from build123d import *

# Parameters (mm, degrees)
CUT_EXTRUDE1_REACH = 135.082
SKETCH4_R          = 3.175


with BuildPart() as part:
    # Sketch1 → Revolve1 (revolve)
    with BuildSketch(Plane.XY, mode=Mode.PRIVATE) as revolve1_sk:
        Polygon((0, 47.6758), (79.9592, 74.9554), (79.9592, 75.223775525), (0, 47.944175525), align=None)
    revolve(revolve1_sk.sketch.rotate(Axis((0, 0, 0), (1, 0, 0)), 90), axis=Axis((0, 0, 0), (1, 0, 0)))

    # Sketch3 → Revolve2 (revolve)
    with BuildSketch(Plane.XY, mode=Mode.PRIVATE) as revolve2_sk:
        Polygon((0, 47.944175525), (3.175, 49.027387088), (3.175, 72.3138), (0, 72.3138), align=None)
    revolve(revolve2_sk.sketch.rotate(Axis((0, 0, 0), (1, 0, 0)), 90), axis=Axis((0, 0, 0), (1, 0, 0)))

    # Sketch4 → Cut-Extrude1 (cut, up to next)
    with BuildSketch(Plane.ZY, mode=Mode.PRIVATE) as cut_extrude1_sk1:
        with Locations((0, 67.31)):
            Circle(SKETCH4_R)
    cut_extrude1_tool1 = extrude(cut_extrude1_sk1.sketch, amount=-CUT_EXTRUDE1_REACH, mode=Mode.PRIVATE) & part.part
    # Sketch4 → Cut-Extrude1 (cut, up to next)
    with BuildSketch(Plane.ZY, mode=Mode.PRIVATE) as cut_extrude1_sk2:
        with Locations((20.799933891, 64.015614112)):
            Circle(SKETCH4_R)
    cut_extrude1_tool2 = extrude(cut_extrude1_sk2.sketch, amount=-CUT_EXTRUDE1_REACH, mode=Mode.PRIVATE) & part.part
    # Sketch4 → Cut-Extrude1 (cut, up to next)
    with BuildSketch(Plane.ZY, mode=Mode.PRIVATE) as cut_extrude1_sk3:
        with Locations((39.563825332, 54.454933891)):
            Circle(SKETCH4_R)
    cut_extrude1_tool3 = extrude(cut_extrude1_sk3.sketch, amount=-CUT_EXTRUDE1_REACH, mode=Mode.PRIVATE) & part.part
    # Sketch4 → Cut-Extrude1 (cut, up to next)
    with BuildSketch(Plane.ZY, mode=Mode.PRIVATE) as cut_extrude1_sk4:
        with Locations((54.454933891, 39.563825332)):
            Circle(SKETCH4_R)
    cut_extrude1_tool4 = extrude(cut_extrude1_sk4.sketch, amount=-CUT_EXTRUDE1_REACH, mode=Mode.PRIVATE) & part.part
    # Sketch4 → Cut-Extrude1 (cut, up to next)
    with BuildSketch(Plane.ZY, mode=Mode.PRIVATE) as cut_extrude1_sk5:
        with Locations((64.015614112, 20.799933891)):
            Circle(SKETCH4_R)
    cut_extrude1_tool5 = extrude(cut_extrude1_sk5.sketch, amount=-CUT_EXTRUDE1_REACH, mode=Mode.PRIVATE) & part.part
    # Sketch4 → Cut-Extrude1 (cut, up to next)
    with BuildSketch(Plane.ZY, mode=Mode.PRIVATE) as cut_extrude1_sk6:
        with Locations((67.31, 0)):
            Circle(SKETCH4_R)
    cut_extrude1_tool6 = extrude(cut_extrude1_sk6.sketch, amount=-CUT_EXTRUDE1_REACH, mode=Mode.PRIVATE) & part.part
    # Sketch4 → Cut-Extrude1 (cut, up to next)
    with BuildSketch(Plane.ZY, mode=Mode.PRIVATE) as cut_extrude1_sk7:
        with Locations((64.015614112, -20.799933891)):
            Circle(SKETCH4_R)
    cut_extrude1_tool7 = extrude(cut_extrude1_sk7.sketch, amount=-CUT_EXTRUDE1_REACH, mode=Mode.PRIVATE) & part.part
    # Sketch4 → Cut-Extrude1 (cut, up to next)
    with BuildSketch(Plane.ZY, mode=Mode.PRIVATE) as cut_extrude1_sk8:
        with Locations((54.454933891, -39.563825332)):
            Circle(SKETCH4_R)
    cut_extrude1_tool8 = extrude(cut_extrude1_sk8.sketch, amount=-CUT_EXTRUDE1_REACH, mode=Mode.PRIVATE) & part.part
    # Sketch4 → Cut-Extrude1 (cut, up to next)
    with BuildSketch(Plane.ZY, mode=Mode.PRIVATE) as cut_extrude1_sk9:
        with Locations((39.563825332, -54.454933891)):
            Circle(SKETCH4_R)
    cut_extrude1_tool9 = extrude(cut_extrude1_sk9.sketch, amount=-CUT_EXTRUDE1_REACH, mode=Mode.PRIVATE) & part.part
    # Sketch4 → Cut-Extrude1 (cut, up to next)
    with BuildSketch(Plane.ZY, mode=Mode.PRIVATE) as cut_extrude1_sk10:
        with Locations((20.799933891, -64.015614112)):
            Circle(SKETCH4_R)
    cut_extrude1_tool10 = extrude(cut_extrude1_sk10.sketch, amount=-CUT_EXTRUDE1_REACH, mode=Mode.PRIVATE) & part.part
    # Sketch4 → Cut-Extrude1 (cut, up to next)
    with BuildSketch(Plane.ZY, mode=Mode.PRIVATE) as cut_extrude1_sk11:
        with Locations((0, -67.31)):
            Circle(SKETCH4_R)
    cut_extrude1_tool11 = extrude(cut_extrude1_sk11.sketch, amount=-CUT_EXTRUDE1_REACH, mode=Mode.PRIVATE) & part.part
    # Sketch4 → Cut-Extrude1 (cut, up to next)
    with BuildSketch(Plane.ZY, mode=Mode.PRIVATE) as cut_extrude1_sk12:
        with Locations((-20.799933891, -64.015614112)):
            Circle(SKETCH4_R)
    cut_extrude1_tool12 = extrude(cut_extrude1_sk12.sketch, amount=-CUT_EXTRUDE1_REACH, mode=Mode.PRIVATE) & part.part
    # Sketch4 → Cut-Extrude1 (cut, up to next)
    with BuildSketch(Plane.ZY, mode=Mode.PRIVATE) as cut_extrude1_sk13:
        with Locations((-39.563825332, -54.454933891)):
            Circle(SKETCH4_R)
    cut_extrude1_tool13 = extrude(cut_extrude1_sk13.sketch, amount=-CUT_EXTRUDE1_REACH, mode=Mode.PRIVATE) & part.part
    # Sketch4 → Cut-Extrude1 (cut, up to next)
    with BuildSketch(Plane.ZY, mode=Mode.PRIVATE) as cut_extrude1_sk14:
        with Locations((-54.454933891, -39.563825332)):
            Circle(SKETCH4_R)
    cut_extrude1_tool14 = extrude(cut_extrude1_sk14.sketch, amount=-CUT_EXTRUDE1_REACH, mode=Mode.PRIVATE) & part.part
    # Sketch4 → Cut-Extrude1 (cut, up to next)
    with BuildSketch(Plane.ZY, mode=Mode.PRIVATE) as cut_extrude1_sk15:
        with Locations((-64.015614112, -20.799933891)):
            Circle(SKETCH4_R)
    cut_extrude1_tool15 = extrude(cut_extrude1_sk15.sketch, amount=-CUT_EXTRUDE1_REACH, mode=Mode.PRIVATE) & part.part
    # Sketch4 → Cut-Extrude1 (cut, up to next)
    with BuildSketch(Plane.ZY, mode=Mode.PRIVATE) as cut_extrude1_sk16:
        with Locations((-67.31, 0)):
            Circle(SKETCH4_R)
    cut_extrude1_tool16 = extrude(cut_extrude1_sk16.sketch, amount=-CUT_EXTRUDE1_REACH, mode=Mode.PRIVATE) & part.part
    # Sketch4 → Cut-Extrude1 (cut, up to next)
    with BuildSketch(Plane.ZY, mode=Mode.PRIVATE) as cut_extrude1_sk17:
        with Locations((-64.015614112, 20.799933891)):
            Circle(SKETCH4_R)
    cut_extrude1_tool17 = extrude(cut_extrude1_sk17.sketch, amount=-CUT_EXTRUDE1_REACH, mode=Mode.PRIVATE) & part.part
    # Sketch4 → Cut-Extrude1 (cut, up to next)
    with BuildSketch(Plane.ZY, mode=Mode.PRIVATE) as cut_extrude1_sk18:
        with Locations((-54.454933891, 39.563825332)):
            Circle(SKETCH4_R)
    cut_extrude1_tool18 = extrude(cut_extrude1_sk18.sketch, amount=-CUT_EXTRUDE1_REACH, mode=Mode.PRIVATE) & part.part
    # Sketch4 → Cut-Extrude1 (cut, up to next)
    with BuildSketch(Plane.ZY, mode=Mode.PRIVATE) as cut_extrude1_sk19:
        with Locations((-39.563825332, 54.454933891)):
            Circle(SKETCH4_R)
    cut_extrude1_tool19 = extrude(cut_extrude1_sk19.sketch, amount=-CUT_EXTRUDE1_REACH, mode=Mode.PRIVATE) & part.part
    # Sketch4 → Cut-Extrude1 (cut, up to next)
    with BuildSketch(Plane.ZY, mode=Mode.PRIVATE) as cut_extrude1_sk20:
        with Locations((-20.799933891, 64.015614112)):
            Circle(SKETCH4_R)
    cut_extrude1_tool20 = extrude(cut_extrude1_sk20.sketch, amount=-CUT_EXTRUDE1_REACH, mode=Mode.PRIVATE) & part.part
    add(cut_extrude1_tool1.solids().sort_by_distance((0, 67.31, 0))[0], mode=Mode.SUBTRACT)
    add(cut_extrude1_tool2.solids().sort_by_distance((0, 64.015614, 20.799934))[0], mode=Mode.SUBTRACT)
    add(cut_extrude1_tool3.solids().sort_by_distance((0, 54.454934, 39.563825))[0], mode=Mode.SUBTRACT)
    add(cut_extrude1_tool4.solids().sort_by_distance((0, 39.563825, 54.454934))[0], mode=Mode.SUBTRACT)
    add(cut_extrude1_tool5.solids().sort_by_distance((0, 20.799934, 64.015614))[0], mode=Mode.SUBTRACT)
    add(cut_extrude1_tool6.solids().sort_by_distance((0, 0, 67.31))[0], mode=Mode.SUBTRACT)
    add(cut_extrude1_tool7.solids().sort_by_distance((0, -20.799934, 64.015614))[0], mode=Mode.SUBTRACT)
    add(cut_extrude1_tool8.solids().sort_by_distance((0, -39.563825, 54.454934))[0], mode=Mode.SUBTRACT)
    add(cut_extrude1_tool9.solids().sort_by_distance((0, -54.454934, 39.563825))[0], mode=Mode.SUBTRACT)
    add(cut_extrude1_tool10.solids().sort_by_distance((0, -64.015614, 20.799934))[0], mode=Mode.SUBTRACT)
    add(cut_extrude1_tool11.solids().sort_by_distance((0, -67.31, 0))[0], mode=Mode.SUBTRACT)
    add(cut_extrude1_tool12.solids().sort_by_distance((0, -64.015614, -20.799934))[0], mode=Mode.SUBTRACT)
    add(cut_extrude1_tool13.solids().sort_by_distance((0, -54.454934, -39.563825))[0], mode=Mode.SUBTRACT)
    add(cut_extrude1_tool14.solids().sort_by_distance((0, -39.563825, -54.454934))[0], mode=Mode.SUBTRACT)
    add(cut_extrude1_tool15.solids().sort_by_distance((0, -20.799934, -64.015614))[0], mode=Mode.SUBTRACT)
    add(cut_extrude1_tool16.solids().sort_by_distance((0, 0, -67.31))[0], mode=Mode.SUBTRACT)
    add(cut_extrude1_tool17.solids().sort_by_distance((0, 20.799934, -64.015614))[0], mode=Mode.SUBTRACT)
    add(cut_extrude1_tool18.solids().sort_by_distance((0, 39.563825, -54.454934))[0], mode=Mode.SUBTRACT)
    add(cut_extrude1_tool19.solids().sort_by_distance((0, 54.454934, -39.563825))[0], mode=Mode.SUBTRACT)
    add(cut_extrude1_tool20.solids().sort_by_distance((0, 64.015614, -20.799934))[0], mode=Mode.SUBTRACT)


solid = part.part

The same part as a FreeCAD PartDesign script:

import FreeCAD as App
import Part
import Sketcher
Q = App.Units.Quantity


def add_polygon(sketch, points):
    """Adds a closed chain of lines whose ends are joined by coincident constraints."""
    first, n = sketch.GeometryCount, len(points)
    for a, b in zip(points, points[1:] + points[:1]):
        sketch.addGeometry(Part.LineSegment(App.Vector(*a, 0), App.Vector(*b, 0)), False)
    for i in range(n):
        sketch.addConstraint(Sketcher.Constraint("Coincident", first + i, 2, first + (i + 1) % n, 1))

doc = App.newDocument("Part")
body = doc.addObject("PartDesign::Body", "Body")

# Sketch on XY plane
sketch1 = body.newObject("Sketcher::SketchObject", "Sketch")
sketch1.AttachmentSupport = (doc.getObject("XY_Plane"), [""])
sketch1.MapMode = "FlatFace"
add_polygon(sketch1, [(0, 47.68), (79.96, 74.96), (79.96, 75.22), (0, 47.94)])  # lines 0-3
sketch1.addConstraint([
    Sketcher.Constraint("Vertical", 1),
    Sketcher.Constraint("Vertical", 3),
    Sketcher.Constraint("PointOnObject", 2, 2, -2),
    Sketcher.Constraint("Parallel", 0, 2),
    Sketcher.Constraint("DistanceX", -1, 1, 0, 2, Q("3.148 in")),
    Sketcher.Constraint("DistanceY", -1, 1, 0, 2, Q("2.951 in")),
    Sketcher.Constraint("DistanceY", -1, 1, 3, 2, Q("1.877 in")),
    Sketcher.Constraint("DistanceY", 1, 1, 1, 2, 0.268376),
])
revolution = body.newObject("PartDesign::Revolution", "Revolution")
revolution.Profile = sketch1
revolution.ReferenceAxis = (sketch1, ["H_Axis"])
revolution.Angle = 360

# Sketch on XY plane
sketch2 = body.newObject("Sketcher::SketchObject", "Sketch001")
sketch2.AttachmentSupport = (doc.getObject("XY_Plane"), [""])
sketch2.MapMode = "FlatFace"
add_polygon(sketch2, [(0, 47.9), (3.2, 49), (3.2, 72.3), (0, 72.3)])  # lines 0-3
sketch2.addConstraint([
    Sketcher.Constraint("Vertical", 1),
    Sketcher.Constraint("Horizontal", 2),
    Sketcher.Constraint("Vertical", 3),
    Sketcher.Constraint("PointOnObject", 2, 2, -2),
    Sketcher.Constraint("DistanceX", 2, 2, 2, 1, Q("0.125 in")),
    Sketcher.Constraint("DistanceY", -1, 1, 1, 2, Q("2.847 in")),
    Sketcher.Constraint("DistanceY", 1, 1, 1, 2, 23.286413),
    Sketcher.Constraint("DistanceY", 3, 2, 3, 1, 24.369624),
])
revolution2 = body.newObject("PartDesign::Revolution", "Revolution001")
revolution2.Profile = sketch2
revolution2.ReferenceAxis = (sketch2, ["H_Axis"])
revolution2.Angle = 360

# Sketch on YZ plane
sketch3 = body.newObject("Sketcher::SketchObject", "Sketch002")
sketch3.AttachmentSupport = (doc.getObject("YZ_Plane"), [""])
sketch3.MapMode = "FlatFace"
sketch3.addGeometry(Part.Circle(App.Vector(67.3, 0, 0), App.Vector(0, 0, 1), 3.2), False)
sketch3.addConstraint([
    Sketcher.Constraint("PointOnObject", 0, 3, -1),
    Sketcher.Constraint("Diameter", 0, Q("0.25 in")),
    Sketcher.Constraint("DistanceX", -1, 1, 0, 3, Q("2.65 in")),
])
pocket1 = body.newObject("PartDesign::Pocket", "Pocket")
pocket1.Profile = sketch3
pocket1.Type = "UpToFirst"
pocket1.Reversed = True

# Sketch on YZ plane
sketch4 = body.newObject("Sketcher::SketchObject", "Sketch003")
sketch4.AttachmentSupport = (doc.getObject("YZ_Plane"), [""])
sketch4.MapMode = "FlatFace"
sketch4.addGeometry(Part.Circle(App.Vector(64, 20.8, 0), App.Vector(0, 0, 1), 3.2), False)
sketch4.addConstraint([
    Sketcher.Constraint("Diameter", 0, Q("0.25 in")),
    Sketcher.Constraint("DistanceX", -1, 1, 0, 3, 64.015614),
    Sketcher.Constraint("DistanceY", -1, 1, 0, 3, 20.799934),
])
pocket2 = body.newObject("PartDesign::Pocket", "Pocket001")
pocket2.Profile = sketch4
pocket2.Type = "UpToFirst"
pocket2.Reversed = True

# Sketch on YZ plane
sketch5 = body.newObject("Sketcher::SketchObject", "Sketch004")
sketch5.AttachmentSupport = (doc.getObject("YZ_Plane"), [""])
sketch5.MapMode = "FlatFace"
sketch5.addGeometry(Part.Circle(App.Vector(54.5, 39.6, 0), App.Vector(0, 0, 1), 3.2), False)
sketch5.addConstraint([
    Sketcher.Constraint("Diameter", 0, Q("0.25 in")),
    Sketcher.Constraint("DistanceX", -1, 1, 0, 3, 54.454934),
    Sketcher.Constraint("DistanceY", -1, 1, 0, 3, 39.563825),
])
pocket3 = body.newObject("PartDesign::Pocket", "Pocket002")
pocket3.Profile = sketch5
pocket3.Type = "UpToFirst"
pocket3.Reversed = True

# Sketch on YZ plane
sketch6 = body.newObject("Sketcher::SketchObject", "Sketch005")
sketch6.AttachmentSupport = (doc.getObject("YZ_Plane"), [""])
sketch6.MapMode = "FlatFace"
sketch6.addGeometry(Part.Circle(App.Vector(39.6, 54.5, 0), App.Vector(0, 0, 1), 3.2), False)
sketch6.addConstraint([
    Sketcher.Constraint("Diameter", 0, Q("0.25 in")),
    Sketcher.Constraint("DistanceX", -1, 1, 0, 3, 39.563825),
    Sketcher.Constraint("DistanceY", -1, 1, 0, 3, 54.454934),
])
pocket4 = body.newObject("PartDesign::Pocket", "Pocket003")
pocket4.Profile = sketch6
pocket4.Type = "UpToFirst"
pocket4.Reversed = True

# Sketch on YZ plane
sketch7 = body.newObject("Sketcher::SketchObject", "Sketch006")
sketch7.AttachmentSupport = (doc.getObject("YZ_Plane"), [""])
sketch7.MapMode = "FlatFace"
sketch7.addGeometry(Part.Circle(App.Vector(20.8, 64, 0), App.Vector(0, 0, 1), 3.2), False)
sketch7.addConstraint([
    Sketcher.Constraint("Diameter", 0, Q("0.25 in")),
    Sketcher.Constraint("DistanceX", -1, 1, 0, 3, 20.799934),
    Sketcher.Constraint("DistanceY", -1, 1, 0, 3, 64.015614),
])
pocket5 = body.newObject("PartDesign::Pocket", "Pocket004")
pocket5.Profile = sketch7
pocket5.Type = "UpToFirst"
pocket5.Reversed = True

# Sketch on YZ plane
sketch8 = body.newObject("Sketcher::SketchObject", "Sketch007")
sketch8.AttachmentSupport = (doc.getObject("YZ_Plane"), [""])
sketch8.MapMode = "FlatFace"
sketch8.addGeometry(Part.Circle(App.Vector(0, 67.3, 0), App.Vector(0, 0, 1), 3.2), False)
sketch8.addConstraint([
    Sketcher.Constraint("PointOnObject", 0, 3, -2),
    Sketcher.Constraint("Diameter", 0, Q("0.25 in")),
    Sketcher.Constraint("DistanceY", -1, 1, 0, 3, Q("2.65 in")),
])
pocket6 = body.newObject("PartDesign::Pocket", "Pocket005")
pocket6.Profile = sketch8
pocket6.Type = "UpToFirst"
pocket6.Reversed = True

# Sketch on YZ plane
sketch9 = body.newObject("Sketcher::SketchObject", "Sketch008")
sketch9.AttachmentSupport = (doc.getObject("YZ_Plane"), [""])
sketch9.MapMode = "FlatFace"
sketch9.addGeometry(Part.Circle(App.Vector(-20.8, 64, 0), App.Vector(0, 0, 1), 3.2), False)
sketch9.addConstraint([
    Sketcher.Constraint("Diameter", 0, Q("0.25 in")),
    Sketcher.Constraint("DistanceX", 0, 3, -1, 1, 20.799934),
    Sketcher.Constraint("DistanceY", -1, 1, 0, 3, 64.015614),
])
pocket7 = body.newObject("PartDesign::Pocket", "Pocket006")
pocket7.Profile = sketch9
pocket7.Type = "UpToFirst"
pocket7.Reversed = True

# Sketch on YZ plane
sketch10 = body.newObject("Sketcher::SketchObject", "Sketch009")
sketch10.AttachmentSupport = (doc.getObject("YZ_Plane"), [""])
sketch10.MapMode = "FlatFace"
sketch10.addGeometry(Part.Circle(App.Vector(-39.6, 54.5, 0), App.Vector(0, 0, 1), 3.2), False)
sketch10.addConstraint([
    Sketcher.Constraint("Diameter", 0, Q("0.25 in")),
    Sketcher.Constraint("DistanceX", 0, 3, -1, 1, 39.563825),
    Sketcher.Constraint("DistanceY", -1, 1, 0, 3, 54.454934),
])
pocket8 = body.newObject("PartDesign::Pocket", "Pocket007")
pocket8.Profile = sketch10
pocket8.Type = "UpToFirst"
pocket8.Reversed = True

# Sketch on YZ plane
sketch11 = body.newObject("Sketcher::SketchObject", "Sketch010")
sketch11.AttachmentSupport = (doc.getObject("YZ_Plane"), [""])
sketch11.MapMode = "FlatFace"
sketch11.addGeometry(Part.Circle(App.Vector(-54.5, 39.6, 0), App.Vector(0, 0, 1), 3.2), False)
sketch11.addConstraint([
    Sketcher.Constraint("Diameter", 0, Q("0.25 in")),
    Sketcher.Constraint("DistanceX", 0, 3, -1, 1, 54.454934),
    Sketcher.Constraint("DistanceY", -1, 1, 0, 3, 39.563825),
])
pocket9 = body.newObject("PartDesign::Pocket", "Pocket008")
pocket9.Profile = sketch11
pocket9.Type = "UpToFirst"
pocket9.Reversed = True

# Sketch on YZ plane
sketch12 = body.newObject("Sketcher::SketchObject", "Sketch011")
sketch12.AttachmentSupport = (doc.getObject("YZ_Plane"), [""])
sketch12.MapMode = "FlatFace"
sketch12.addGeometry(Part.Circle(App.Vector(-64, 20.8, 0), App.Vector(0, 0, 1), 3.2), False)
sketch12.addConstraint([
    Sketcher.Constraint("Diameter", 0, Q("0.25 in")),
    Sketcher.Constraint("DistanceX", 0, 3, -1, 1, 64.015614),
    Sketcher.Constraint("DistanceY", -1, 1, 0, 3, 20.799934),
])
pocket10 = body.newObject("PartDesign::Pocket", "Pocket009")
pocket10.Profile = sketch12
pocket10.Type = "UpToFirst"
pocket10.Reversed = True

# Sketch on YZ plane
sketch13 = body.newObject("Sketcher::SketchObject", "Sketch012")
sketch13.AttachmentSupport = (doc.getObject("YZ_Plane"), [""])
sketch13.MapMode = "FlatFace"
sketch13.addGeometry(Part.Circle(App.Vector(-67.3, 0, 0), App.Vector(0, 0, 1), 3.2), False)
sketch13.addConstraint([
    Sketcher.Constraint("PointOnObject", 0, 3, -1),
    Sketcher.Constraint("Diameter", 0, Q("0.25 in")),
    Sketcher.Constraint("DistanceX", 0, 3, -1, 1, Q("2.65 in")),
])
pocket11 = body.newObject("PartDesign::Pocket", "Pocket010")
pocket11.Profile = sketch13
pocket11.Type = "UpToFirst"
pocket11.Reversed = True

# Sketch on YZ plane
sketch14 = body.newObject("Sketcher::SketchObject", "Sketch013")
sketch14.AttachmentSupport = (doc.getObject("YZ_Plane"), [""])
sketch14.MapMode = "FlatFace"
sketch14.addGeometry(Part.Circle(App.Vector(-64, -20.8, 0), App.Vector(0, 0, 1), 3.2), False)
sketch14.addConstraint([
    Sketcher.Constraint("Diameter", 0, Q("0.25 in")),
    Sketcher.Constraint("DistanceX", 0, 3, -1, 1, 64.015614),
    Sketcher.Constraint("DistanceY", 0, 3, -1, 1, 20.799934),
])
pocket12 = body.newObject("PartDesign::Pocket", "Pocket011")
pocket12.Profile = sketch14
pocket12.Type = "UpToFirst"
pocket12.Reversed = True

# Sketch on YZ plane
sketch15 = body.newObject("Sketcher::SketchObject", "Sketch014")
sketch15.AttachmentSupport = (doc.getObject("YZ_Plane"), [""])
sketch15.MapMode = "FlatFace"
sketch15.addGeometry(Part.Circle(App.Vector(-54.5, -39.6, 0), App.Vector(0, 0, 1), 3.2), False)
sketch15.addConstraint([
    Sketcher.Constraint("Diameter", 0, Q("0.25 in")),
    Sketcher.Constraint("DistanceX", 0, 3, -1, 1, 54.454934),
    Sketcher.Constraint("DistanceY", 0, 3, -1, 1, 39.563825),
])
pocket13 = body.newObject("PartDesign::Pocket", "Pocket012")
pocket13.Profile = sketch15
pocket13.Type = "UpToFirst"
pocket13.Reversed = True

# Sketch on YZ plane
sketch16 = body.newObject("Sketcher::SketchObject", "Sketch015")
sketch16.AttachmentSupport = (doc.getObject("YZ_Plane"), [""])
sketch16.MapMode = "FlatFace"
sketch16.addGeometry(Part.Circle(App.Vector(-39.6, -54.5, 0), App.Vector(0, 0, 1), 3.2), False)
sketch16.addConstraint([
    Sketcher.Constraint("Diameter", 0, Q("0.25 in")),
    Sketcher.Constraint("DistanceX", 0, 3, -1, 1, 39.563825),
    Sketcher.Constraint("DistanceY", 0, 3, -1, 1, 54.454934),
])
pocket14 = body.newObject("PartDesign::Pocket", "Pocket013")
pocket14.Profile = sketch16
pocket14.Type = "UpToFirst"
pocket14.Reversed = True

# Sketch on YZ plane
sketch17 = body.newObject("Sketcher::SketchObject", "Sketch016")
sketch17.AttachmentSupport = (doc.getObject("YZ_Plane"), [""])
sketch17.MapMode = "FlatFace"
sketch17.addGeometry(Part.Circle(App.Vector(-20.8, -64, 0), App.Vector(0, 0, 1), 3.2), False)
sketch17.addConstraint([
    Sketcher.Constraint("Diameter", 0, Q("0.25 in")),
    Sketcher.Constraint("DistanceX", 0, 3, -1, 1, 20.799934),
    Sketcher.Constraint("DistanceY", 0, 3, -1, 1, 64.015614),
])
pocket15 = body.newObject("PartDesign::Pocket", "Pocket014")
pocket15.Profile = sketch17
pocket15.Type = "UpToFirst"
pocket15.Reversed = True

# Sketch on YZ plane
sketch18 = body.newObject("Sketcher::SketchObject", "Sketch017")
sketch18.AttachmentSupport = (doc.getObject("YZ_Plane"), [""])
sketch18.MapMode = "FlatFace"
sketch18.addGeometry(Part.Circle(App.Vector(0, -67.3, 0), App.Vector(0, 0, 1), 3.2), False)
sketch18.addConstraint([
    Sketcher.Constraint("PointOnObject", 0, 3, -2),
    Sketcher.Constraint("Diameter", 0, Q("0.25 in")),
    Sketcher.Constraint("DistanceY", 0, 3, -1, 1, Q("2.65 in")),
])
pocket16 = body.newObject("PartDesign::Pocket", "Pocket015")
pocket16.Profile = sketch18
pocket16.Type = "UpToFirst"
pocket16.Reversed = True

# Sketch on YZ plane
sketch19 = body.newObject("Sketcher::SketchObject", "Sketch018")
sketch19.AttachmentSupport = (doc.getObject("YZ_Plane"), [""])
sketch19.MapMode = "FlatFace"
sketch19.addGeometry(Part.Circle(App.Vector(20.8, -64, 0), App.Vector(0, 0, 1), 3.2), False)
sketch19.addConstraint([
    Sketcher.Constraint("Diameter", 0, Q("0.25 in")),
    Sketcher.Constraint("DistanceX", -1, 1, 0, 3, 20.799934),
    Sketcher.Constraint("DistanceY", 0, 3, -1, 1, 64.015614),
])
pocket17 = body.newObject("PartDesign::Pocket", "Pocket016")
pocket17.Profile = sketch19
pocket17.Type = "UpToFirst"
pocket17.Reversed = True

# Sketch on YZ plane
sketch20 = body.newObject("Sketcher::SketchObject", "Sketch019")
sketch20.AttachmentSupport = (doc.getObject("YZ_Plane"), [""])
sketch20.MapMode = "FlatFace"
sketch20.addGeometry(Part.Circle(App.Vector(39.6, -54.5, 0), App.Vector(0, 0, 1), 3.2), False)
sketch20.addConstraint([
    Sketcher.Constraint("Diameter", 0, Q("0.25 in")),
    Sketcher.Constraint("DistanceX", -1, 1, 0, 3, 39.563825),
    Sketcher.Constraint("DistanceY", 0, 3, -1, 1, 54.454934),
])
pocket18 = body.newObject("PartDesign::Pocket", "Pocket017")
pocket18.Profile = sketch20
pocket18.Type = "UpToFirst"
pocket18.Reversed = True

# Sketch on YZ plane
sketch21 = body.newObject("Sketcher::SketchObject", "Sketch020")
sketch21.AttachmentSupport = (doc.getObject("YZ_Plane"), [""])
sketch21.MapMode = "FlatFace"
sketch21.addGeometry(Part.Circle(App.Vector(54.5, -39.6, 0), App.Vector(0, 0, 1), 3.2), False)
sketch21.addConstraint([
    Sketcher.Constraint("Diameter", 0, Q("0.25 in")),
    Sketcher.Constraint("DistanceX", -1, 1, 0, 3, 54.454934),
    Sketcher.Constraint("DistanceY", 0, 3, -1, 1, 39.563825),
])
pocket19 = body.newObject("PartDesign::Pocket", "Pocket018")
pocket19.Profile = sketch21
pocket19.Type = "UpToFirst"
pocket19.Reversed = True

# Sketch on YZ plane
sketch22 = body.newObject("Sketcher::SketchObject", "Sketch021")
sketch22.AttachmentSupport = (doc.getObject("YZ_Plane"), [""])
sketch22.MapMode = "FlatFace"
sketch22.addGeometry(Part.Circle(App.Vector(64, -20.8, 0), App.Vector(0, 0, 1), 3.2), False)
sketch22.addConstraint([
    Sketcher.Constraint("Diameter", 0, Q("0.25 in")),
    Sketcher.Constraint("DistanceX", -1, 1, 0, 3, 64.015614),
    Sketcher.Constraint("DistanceY", 0, 3, -1, 1, 20.799934),
])
pocket20 = body.newObject("PartDesign::Pocket", "Pocket019")
pocket20.Profile = sketch22
pocket20.Type = "UpToFirst"
pocket20.Reversed = True

doc.recompute()
